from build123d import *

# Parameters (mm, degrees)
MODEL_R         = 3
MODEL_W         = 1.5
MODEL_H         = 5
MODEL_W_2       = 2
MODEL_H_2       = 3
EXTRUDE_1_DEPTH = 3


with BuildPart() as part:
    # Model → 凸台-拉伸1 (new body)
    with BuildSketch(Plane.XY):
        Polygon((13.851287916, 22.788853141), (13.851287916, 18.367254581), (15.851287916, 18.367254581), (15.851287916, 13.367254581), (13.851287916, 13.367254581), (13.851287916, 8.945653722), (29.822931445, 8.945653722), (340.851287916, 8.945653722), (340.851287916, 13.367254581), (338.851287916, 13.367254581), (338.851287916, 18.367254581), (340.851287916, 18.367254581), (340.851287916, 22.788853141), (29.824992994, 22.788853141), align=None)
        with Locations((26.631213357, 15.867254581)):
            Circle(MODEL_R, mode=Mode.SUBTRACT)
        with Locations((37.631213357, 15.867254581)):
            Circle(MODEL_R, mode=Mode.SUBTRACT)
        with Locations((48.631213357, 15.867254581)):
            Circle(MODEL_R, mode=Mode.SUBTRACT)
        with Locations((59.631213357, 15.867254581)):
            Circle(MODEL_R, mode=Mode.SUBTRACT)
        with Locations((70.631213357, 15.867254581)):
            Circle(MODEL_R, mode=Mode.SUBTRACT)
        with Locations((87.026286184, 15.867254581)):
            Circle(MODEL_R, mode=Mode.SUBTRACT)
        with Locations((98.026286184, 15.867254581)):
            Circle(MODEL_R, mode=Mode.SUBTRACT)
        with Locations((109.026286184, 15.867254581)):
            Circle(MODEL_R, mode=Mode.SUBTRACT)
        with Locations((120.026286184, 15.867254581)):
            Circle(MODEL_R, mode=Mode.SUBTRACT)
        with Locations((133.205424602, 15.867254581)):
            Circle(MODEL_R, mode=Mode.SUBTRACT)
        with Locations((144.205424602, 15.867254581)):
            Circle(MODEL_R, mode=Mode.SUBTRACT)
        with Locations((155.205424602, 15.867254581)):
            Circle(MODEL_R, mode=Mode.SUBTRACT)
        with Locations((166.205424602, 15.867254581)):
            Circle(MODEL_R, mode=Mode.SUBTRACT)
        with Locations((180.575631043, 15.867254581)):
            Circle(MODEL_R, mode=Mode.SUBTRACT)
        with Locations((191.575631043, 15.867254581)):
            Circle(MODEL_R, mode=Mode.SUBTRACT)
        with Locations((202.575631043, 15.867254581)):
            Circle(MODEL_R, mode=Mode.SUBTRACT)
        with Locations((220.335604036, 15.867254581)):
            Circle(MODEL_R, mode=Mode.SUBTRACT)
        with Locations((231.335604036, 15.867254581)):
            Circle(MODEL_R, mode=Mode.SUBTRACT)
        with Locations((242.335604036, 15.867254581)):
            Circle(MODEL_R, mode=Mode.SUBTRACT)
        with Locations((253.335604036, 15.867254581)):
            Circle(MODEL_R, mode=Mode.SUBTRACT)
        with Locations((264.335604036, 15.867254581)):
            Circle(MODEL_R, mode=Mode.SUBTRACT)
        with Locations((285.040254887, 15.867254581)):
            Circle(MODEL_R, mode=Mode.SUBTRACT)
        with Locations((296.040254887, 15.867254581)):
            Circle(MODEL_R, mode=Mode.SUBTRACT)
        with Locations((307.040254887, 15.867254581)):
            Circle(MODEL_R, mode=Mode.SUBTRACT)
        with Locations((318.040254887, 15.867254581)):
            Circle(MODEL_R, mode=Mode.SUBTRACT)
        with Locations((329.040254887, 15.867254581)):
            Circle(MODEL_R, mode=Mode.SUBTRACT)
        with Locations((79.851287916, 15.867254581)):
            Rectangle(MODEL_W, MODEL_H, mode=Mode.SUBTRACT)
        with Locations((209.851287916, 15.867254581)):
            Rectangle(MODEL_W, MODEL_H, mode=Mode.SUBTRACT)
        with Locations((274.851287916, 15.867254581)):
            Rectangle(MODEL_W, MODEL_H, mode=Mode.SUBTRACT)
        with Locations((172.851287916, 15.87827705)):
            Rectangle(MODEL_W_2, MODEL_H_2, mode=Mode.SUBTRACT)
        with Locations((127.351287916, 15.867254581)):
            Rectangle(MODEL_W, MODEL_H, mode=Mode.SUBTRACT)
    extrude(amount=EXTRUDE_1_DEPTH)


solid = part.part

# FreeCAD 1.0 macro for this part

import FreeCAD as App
import Part
import Sketcher

doc = App.newDocument("Part")
params = doc.addObject("Spreadsheet::Sheet", "Params")
for row, (alias, value) in enumerate([
    ("sketch1_diameter", "6 mm"),
    ("sketch1_width", "2 mm"),
    ("sketch1_width2", "327 mm"),
    ("sketch1_height", "5 mm"),
    ("sketch1_height2", "3 mm"),
    ("pad1_length", "3 mm"),
], start=1):
    params.set(f"A{row}", alias)
    params.set(f"B{row}", "=" + value)
    params.setAlias(f"B{row}", alias)

body = doc.addObject("PartDesign::Body", "Body")

sketch1 = body.newObject("Sketcher::SketchObject", "Sketch")
sketch1.AttachmentSupport = (doc.getObject("XY_Plane"), [""])
sketch1.MapMode = "FlatFace"
sketch1.addGeometry(Part.LineSegment(App.Vector(13.851288, 22.788853, 0), App.Vector(13.851288, 18.367255, 0)), False)
sketch1.addGeometry(Part.LineSegment(App.Vector(13.851288, 18.367255, 0), App.Vector(15.851288, 18.367255, 0)), False)
sketch1.addGeometry(Part.LineSegment(App.Vector(15.851288, 18.367255, 0), App.Vector(15.851288, 13.367255, 0)), False)
sketch1.addGeometry(Part.LineSegment(App.Vector(15.851288, 13.367255, 0), App.Vector(13.851288, 13.367255, 0)), False)
sketch1.addGeometry(Part.LineSegment(App.Vector(13.851288, 13.367255, 0), App.Vector(13.851288, 8.945654, 0)), False)
sketch1.addGeometry(Part.LineSegment(App.Vector(13.851288, 8.945654, 0), App.Vector(340.851288, 8.945654, 0)), False)
sketch1.addGeometry(Part.LineSegment(App.Vector(340.851288, 8.945654, 0), App.Vector(340.851288, 13.367255, 0)), False)
sketch1.addGeometry(Part.LineSegment(App.Vector(340.851288, 13.367255, 0), App.Vector(338.851288, 13.367255, 0)), False)
sketch1.addGeometry(Part.LineSegment(App.Vector(338.851288, 13.367255, 0), App.Vector(338.851288, 18.367255, 0)), False)
sketch1.addGeometry(Part.LineSegment(App.Vector(338.851288, 18.367255, 0), App.Vector(340.851288, 18.367255, 0)), False)
sketch1.addGeometry(Part.LineSegment(App.Vector(340.851288, 18.367255, 0), App.Vector(340.851288, 22.788853, 0)), False)
sketch1.addGeometry(Part.LineSegment(App.Vector(340.851288, 22.788853, 0), App.Vector(13.851288, 22.788853, 0)), False)
sketch1.addGeometry(Part.Circle(App.Vector(26.631213, 15.867255, 0), App.Vector(0, 0, 1), 3), False)
sketch1.addGeometry(Part.Circle(App.Vector(37.631213, 15.867255, 0), App.Vector(0, 0, 1), 3), False)
sketch1.addGeometry(Part.Circle(App.Vector(48.631213, 15.867255, 0), App.Vector(0, 0, 1), 3), False)
sketch1.addGeometry(Part.Circle(App.Vector(59.631213, 15.867255, 0), App.Vector(0, 0, 1), 3), False)
sketch1.addGeometry(Part.Circle(App.Vector(70.631213, 15.867255, 0), App.Vector(0, 0, 1), 3), False)
sketch1.addGeometry(Part.LineSegment(App.Vector(80.601288, 13.367255, 0), App.Vector(79.101288, 13.367255, 0)), False)
sketch1.addGeometry(Part.LineSegment(App.Vector(79.101288, 13.367255, 0), App.Vector(79.101288, 18.367255, 0)), False)
sketch1.addGeometry(Part.LineSegment(App.Vector(79.101288, 18.367255, 0), App.Vector(80.601288, 18.367255, 0)), False)
sketch1.addGeometry(Part.LineSegment(App.Vector(80.601288, 18.367255, 0), App.Vector(80.601288, 13.367255, 0)), False)
sketch1.addGeometry(Part.Circle(App.Vector(87.026286, 15.867255, 0), App.Vector(0, 0, 1), 3), False)
sketch1.addGeometry(Part.Circle(App.Vector(98.026286, 15.867255, 0), App.Vector(0, 0, 1), 3), False)
sketch1.addGeometry(Part.Circle(App.Vector(109.026286, 15.867255, 0), App.Vector(0, 0, 1), 3), False)
sketch1.addGeometry(Part.Circle(App.Vector(120.026286, 15.867255, 0), App.Vector(0, 0, 1), 3), False)
sketch1.addGeometry(Part.LineSegment(App.Vector(128.101288, 13.367255, 0), App.Vector(126.601288, 13.367255, 0)), False)
sketch1.addGeometry(Part.LineSegment(App.Vector(126.601288, 13.367255, 0), App.Vector(126.601288, 18.367255, 0)), False)
sketch1.addGeometry(Part.LineSegment(App.Vector(126.601288, 18.367255, 0), App.Vector(128.101288, 18.367255, 0)), False)
sketch1.addGeometry(Part.LineSegment(App.Vector(128.101288, 18.367255, 0), App.Vector(128.101288, 13.367255, 0)), False)
sketch1.addGeometry(Part.Circle(App.Vector(133.205425, 15.867255, 0), App.Vector(0, 0, 1), 3), False)
sketch1.addGeometry(Part.Circle(App.Vector(144.205425, 15.867255, 0), App.Vector(0, 0, 1), 3), False)
sketch1.addGeometry(Part.Circle(App.Vector(155.205425, 15.867255, 0), App.Vector(0, 0, 1), 3), False)
sketch1.addGeometry(Part.Circle(App.Vector(166.205425, 15.867255, 0), App.Vector(0, 0, 1), 3), False)
sketch1.addGeometry(Part.LineSegment(App.Vector(173.851288, 14.378277, 0), App.Vector(171.851288, 14.378277, 0)), False)
sketch1.addGeometry(Part.LineSegment(App.Vector(171.851288, 14.378277, 0), App.Vector(171.851288, 17.378277, 0)), False)
sketch1.addGeometry(Part.LineSegment(App.Vector(171.851288, 17.378277, 0), App.Vector(173.851288, 17.378277, 0)), False)
sketch1.addGeometry(Part.LineSegment(App.Vector(173.851288, 17.378277, 0), App.Vector(173.851288, 14.378277, 0)), False)
sketch1.addGeometry(Part.Circle(App.Vector(180.575631, 15.867255, 0), App.Vector(0, 0, 1), 3), False)
sketch1.addGeometry(Part.Circle(App.Vector(191.575631, 15.867255, 0), App.Vector(0, 0, 1), 3), False)
sketch1.addGeometry(Part.Circle(App.Vector(202.575631, 15.867255, 0), App.Vector(0, 0, 1), 3), False)
sketch1.addGeometry(Part.LineSegment(App.Vector(210.601288, 13.367255, 0), App.Vector(209.101288, 13.367255, 0)), False)
sketch1.addGeometry(Part.LineSegment(App.Vector(209.101288, 13.367255, 0), App.Vector(209.101288, 18.367255, 0)), False)
sketch1.addGeometry(Part.LineSegment(App.Vector(209.101288, 18.367255, 0), App.Vector(210.601288, 18.367255, 0)), False)
sketch1.addGeometry(Part.LineSegment(App.Vector(210.601288, 18.367255, 0), App.Vector(210.601288, 13.367255, 0)), False)
sketch1.addGeometry(Part.Circle(App.Vector(220.335604, 15.867255, 0), App.Vector(0, 0, 1), 3), False)
sketch1.addGeometry(Part.Circle(App.Vector(231.335604, 15.867255, 0), App.Vector(0, 0, 1), 3), False)
sketch1.addGeometry(Part.Circle(App.Vector(242.335604, 15.867255, 0), App.Vector(0, 0, 1), 3), False)
sketch1.addGeometry(Part.Circle(App.Vector(253.335604, 15.867255, 0), App.Vector(0, 0, 1), 3), False)
sketch1.addGeometry(Part.Circle(App.Vector(264.335604, 15.867255, 0), App.Vector(0, 0, 1), 3), False)
sketch1.addGeometry(Part.LineSegment(App.Vector(275.601288, 13.367255, 0), App.Vector(274.101288, 13.367255, 0)), False)
sketch1.addGeometry(Part.LineSegment(App.Vector(274.101288, 13.367255, 0), App.Vector(274.101288, 18.367255, 0)), False)
sketch1.addGeometry(Part.LineSegment(App.Vector(274.101288, 18.367255, 0), App.Vector(275.601288, 18.367255, 0)), False)
sketch1.addGeometry(Part.LineSegment(App.Vector(275.601288, 18.367255, 0), App.Vector(275.601288, 13.367255, 0)), False)
sketch1.addGeometry(Part.Circle(App.Vector(285.040255, 15.867255, 0), App.Vector(0, 0, 1), 3), False)
sketch1.addGeometry(Part.Circle(App.Vector(296.040255, 15.867255, 0), App.Vector(0, 0, 1), 3), False)
sketch1.addGeometry(Part.Circle(App.Vector(307.040255, 15.867255, 0), App.Vector(0, 0, 1), 3), False)
sketch1.addGeometry(Part.Circle(App.Vector(318.040255, 15.867255, 0), App.Vector(0, 0, 1), 3), False)
sketch1.addGeometry(Part.Circle(App.Vector(329.040255, 15.867255, 0), App.Vector(0, 0, 1), 3), False)
sketch1.addConstraint(Sketcher.Constraint("Coincident", 0, 2, 1, 1))
sketch1.addConstraint(Sketcher.Constraint("Coincident", 1, 2, 2, 1))
sketch1.addConstraint(Sketcher.Constraint("Coincident", 2, 2, 3, 1))
sketch1.addConstraint(Sketcher.Constraint("Coincident", 3, 2, 4, 1))
sketch1.addConstraint(Sketcher.Constraint("Coincident", 4, 2, 5, 1))
sketch1.addConstraint(Sketcher.Constraint("Coincident", 5, 2, 6, 1))
sketch1.addConstraint(Sketcher.Constraint("Coincident", 6, 2, 7, 1))
sketch1.addConstraint(Sketcher.Constraint("Coincident", 7, 2, 8, 1))
sketch1.addConstraint(Sketcher.Constraint("Coincident", 8, 2, 9, 1))
sketch1.addConstraint(Sketcher.Constraint("Coincident", 9, 2, 10, 1))
sketch1.addConstraint(Sketcher.Constraint("Coincident", 10, 2, 11, 1))
sketch1.addConstraint(Sketcher.Constraint("Coincident", 11, 2, 0, 1))
sketch1.addConstraint(Sketcher.Constraint("Coincident", 17, 2, 18, 1))
sketch1.addConstraint(Sketcher.Constraint("Coincident", 18, 2, 19, 1))
sketch1.addConstraint(Sketcher.Constraint("Coincident", 19, 2, 20, 1))
sketch1.addConstraint(Sketcher.Constraint("Coincident", 20, 2, 17, 1))
sketch1.addConstraint(Sketcher.Constraint("Coincident", 25, 2, 26, 1))
sketch1.addConstraint(Sketcher.Constraint("Coincident", 26, 2, 27, 1))
sketch1.addConstraint(Sketcher.Constraint("Coincident", 27, 2, 28, 1))
sketch1.addConstraint(Sketcher.Constraint("Coincident", 28, 2, 25, 1))
sketch1.addConstraint(Sketcher.Constraint("Coincident", 33, 2, 34, 1))
sketch1.addConstraint(Sketcher.Constraint("Coincident", 34, 2, 35, 1))
sketch1.addConstraint(Sketcher.Constraint("Coincident", 35, 2, 36, 1))
sketch1.addConstraint(Sketcher.Constraint("Coincident", 36, 2, 33, 1))
sketch1.addConstraint(Sketcher.Constraint("Coincident", 40, 2, 41, 1))
sketch1.addConstraint(Sketcher.Constraint("Coincident", 41, 2, 42, 1))
sketch1.addConstraint(Sketcher.Constraint("Coincident", 42, 2, 43, 1))
sketch1.addConstraint(Sketcher.Constraint("Coincident", 43, 2, 40, 1))
sketch1.addConstraint(Sketcher.Constraint("Coincident", 49, 2, 50, 1))
sketch1.addConstraint(Sketcher.Constraint("Coincident", 50, 2, 51, 1))
sketch1.addConstraint(Sketcher.Constraint("Coincident", 51, 2, 52, 1))
sketch1.addConstraint(Sketcher.Constraint("Coincident", 52, 2, 49, 1))
sketch1.addConstraint(Sketcher.Constraint("Vertical", 0))
sketch1.addConstraint(Sketcher.Constraint("Horizontal", 1))
sketch1.addConstraint(Sketcher.Constraint("Vertical", 2))
sketch1.addConstraint(Sketcher.Constraint("Horizontal", 3))
sketch1.addConstraint(Sketcher.Constraint("Vertical", 4))
sketch1.addConstraint(Sketcher.Constraint("Horizontal", 5))
sketch1.addConstraint(Sketcher.Constraint("Vertical", 6))
sketch1.addConstraint(Sketcher.Constraint("Horizontal", 7))
sketch1.addConstraint(Sketcher.Constraint("Vertical", 8))
sketch1.addConstraint(Sketcher.Constraint("Horizontal", 9))
sketch1.addConstraint(Sketcher.Constraint("Vertical", 10))
sketch1.addConstraint(Sketcher.Constraint("Horizontal", 11))
sketch1.addConstraint(Sketcher.Constraint("Horizontal", 17))
sketch1.addConstraint(Sketcher.Constraint("Vertical", 18))
sketch1.addConstraint(Sketcher.Constraint("Horizontal", 19))
sketch1.addConstraint(Sketcher.Constraint("Vertical", 20))
sketch1.addConstraint(Sketcher.Constraint("Horizontal", 25))
sketch1.addConstraint(Sketcher.Constraint("Vertical", 26))
sketch1.addConstraint(Sketcher.Constraint("Horizontal", 27))
sketch1.addConstraint(Sketcher.Constraint("Vertical", 28))
sketch1.addConstraint(Sketcher.Constraint("Horizontal", 33))
sketch1.addConstraint(Sketcher.Constraint("Vertical", 34))
sketch1.addConstraint(Sketcher.Constraint("Horizontal", 35))
sketch1.addConstraint(Sketcher.Constraint("Vertical", 36))
sketch1.addConstraint(Sketcher.Constraint("Horizontal", 40))
sketch1.addConstraint(Sketcher.Constraint("Vertical", 41))
sketch1.addConstraint(Sketcher.Constraint("Horizontal", 42))
sketch1.addConstraint(Sketcher.Constraint("Vertical", 43))
sketch1.addConstraint(Sketcher.Constraint("Horizontal", 49))
sketch1.addConstraint(Sketcher.Constraint("Vertical", 50))
sketch1.addConstraint(Sketcher.Constraint("Horizontal", 51))
sketch1.addConstraint(Sketcher.Constraint("Vertical", 52))
sketch1.addConstraint(Sketcher.Constraint("Equal", 12, 13))
sketch1.addConstraint(Sketcher.Constraint("Equal", 13, 14))
sketch1.addConstraint(Sketcher.Constraint("Equal", 14, 15))
sketch1.addConstraint(Sketcher.Constraint("Equal", 15, 16))
sketch1.addConstraint(Sketcher.Constraint("Equal", 16, 21))
sketch1.addConstraint(Sketcher.Constraint("Equal", 21, 22))
sketch1.addConstraint(Sketcher.Constraint("Equal", 22, 23))
sketch1.addConstraint(Sketcher.Constraint("Equal", 23, 24))
sketch1.addConstraint(Sketcher.Constraint("Equal", 24, 29))
sketch1.addConstraint(Sketcher.Constraint("Equal", 29, 30))
sketch1.addConstraint(Sketcher.Constraint("Equal", 30, 31))
sketch1.addConstraint(Sketcher.Constraint("Equal", 31, 32))
sketch1.addConstraint(Sketcher.Constraint("Equal", 32, 37))
sketch1.addConstraint(Sketcher.Constraint("Equal", 37, 38))
sketch1.addConstraint(Sketcher.Constraint("Equal", 38, 39))
sketch1.addConstraint(Sketcher.Constraint("Equal", 39, 44))
sketch1.addConstraint(Sketcher.Constraint("Equal", 44, 45))
sketch1.addConstraint(Sketcher.Constraint("Equal", 45, 46))
sketch1.addConstraint(Sketcher.Constraint("Equal", 46, 47))
sketch1.addConstraint(Sketcher.Constraint("Equal", 47, 48))
sketch1.addConstraint(Sketcher.Constraint("Equal", 48, 53))
sketch1.addConstraint(Sketcher.Constraint("Equal", 53, 54))
sketch1.addConstraint(Sketcher.Constraint("Equal", 54, 55))
sketch1.addConstraint(Sketcher.Constraint("Equal", 55, 56))
sketch1.addConstraint(Sketcher.Constraint("Equal", 56, 57))
sketch1.addConstraint(Sketcher.Constraint("Horizontal", 12, 3, 13, 3))
sketch1.addConstraint(Sketcher.Constraint("Horizontal", 13, 3, 14, 3))
sketch1.addConstraint(Sketcher.Constraint("Horizontal", 14, 3, 15, 3))
sketch1.addConstraint(Sketcher.Constraint("Horizontal", 15, 3, 16, 3))
sketch1.addConstraint(Sketcher.Constraint("Horizontal", 16, 3, 21, 3))
sketch1.addConstraint(Sketcher.Constraint("Horizontal", 21, 3, 22, 3))
sketch1.addConstraint(Sketcher.Constraint("Horizontal", 22, 3, 23, 3))
sketch1.addConstraint(Sketcher.Constraint("Horizontal", 23, 3, 24, 3))
sketch1.addConstraint(Sketcher.Constraint("Horizontal", 24, 3, 29, 3))
sketch1.addConstraint(Sketcher.Constraint("Horizontal", 29, 3, 30, 3))
sketch1.addConstraint(Sketcher.Constraint("Horizontal", 30, 3, 31, 3))
sketch1.addConstraint(Sketcher.Constraint("Horizontal", 31, 3, 32, 3))
sketch1.addConstraint(Sketcher.Constraint("Horizontal", 32, 3, 37, 3))
sketch1.addConstraint(Sketcher.Constraint("Horizontal", 37, 3, 38, 3))
sketch1.addConstraint(Sketcher.Constraint("Horizontal", 38, 3, 39, 3))
sketch1.addConstraint(Sketcher.Constraint("Horizontal", 39, 3, 44, 3))
sketch1.addConstraint(Sketcher.Constraint("Horizontal", 44, 3, 45, 3))
sketch1.addConstraint(Sketcher.Constraint("Horizontal", 45, 3, 46, 3))
sketch1.addConstraint(Sketcher.Constraint("Horizontal", 46, 3, 47, 3))
sketch1.addConstraint(Sketcher.Constraint("Horizontal", 47, 3, 48, 3))
sketch1.addConstraint(Sketcher.Constraint("Horizontal", 48, 3, 53, 3))
sketch1.addConstraint(Sketcher.Constraint("Horizontal", 53, 3, 54, 3))
sketch1.addConstraint(Sketcher.Constraint("Horizontal", 54, 3, 55, 3))
sketch1.addConstraint(Sketcher.Constraint("Horizontal", 55, 3, 56, 3))
sketch1.addConstraint(Sketcher.Constraint("Horizontal", 56, 3, 57, 3))
sketch1.addConstraint(Sketcher.Constraint("Horizontal", 3, 2, 6, 2))
sketch1.addConstraint(Sketcher.Constraint("Horizontal", 1, 2, 8, 2))
sketch1.addConstraint(Sketcher.Constraint("Horizontal", 7, 2, 17, 2))
sketch1.addConstraint(Sketcher.Constraint("Horizontal", 9, 2, 18, 2))
sketch1.addConstraint(Sketcher.Constraint("Horizontal", 20, 2, 25, 2))
sketch1.addConstraint(Sketcher.Constraint("Horizontal", 19, 2, 26, 2))
sketch1.addConstraint(Sketcher.Constraint("Horizontal", 28, 2, 40, 2))
sketch1.addConstraint(Sketcher.Constraint("Horizontal", 27, 2, 41, 2))
sketch1.addConstraint(Sketcher.Constraint("Horizontal", 43, 2, 49, 2))
sketch1.addConstraint(Sketcher.Constraint("Horizontal", 42, 2, 50, 2))
sketch1.addConstraint(Sketcher.Constraint("Vertical", 0, 2, 3, 2))
sketch1.addConstraint(Sketcher.Constraint("Vertical", 6, 2, 9, 2))
sketch1.addConstraint(Sketcher.Constraint("Equal", 3, 7))
sketch1.addConstraint(Sketcher.Constraint("Equal", 19, 25))
sketch1.addConstraint(Sketcher.Constraint("Equal", 9, 33))
sketch1.addConstraint(Sketcher.Constraint("Equal", 27, 40))
sketch1.addConstraint(Sketcher.Constraint("Equal", 42, 49))
sketch1.addConstraint(Sketcher.Constraint("Diameter", 12, 6.0))
sketch1.addConstraint(Sketcher.Constraint("DistanceX", 1, 1, 1, 2, 2.0))
sketch1.addConstraint(Sketcher.Constraint("DistanceX", 5, 1, 5, 2, 327.0))
sketch1.addConstraint(Sketcher.Constraint("DistanceY", 2, 2, 2, 1, 5.0))
sketch1.addConstraint(Sketcher.Constraint("DistanceY", 34, 1, 34, 2, 3.0))
sketch1.addConstraint(Sketcher.Constraint("DistanceX", 17, 2, 17, 1, 1.5))
sketch1.addConstraint(Sketcher.Constraint("DistanceX", 12, 3, 13, 3, 11.0))
sketch1.addConstraint(Sketcher.Constraint("DistanceX", 13, 3, 14, 3, 11.0))
sketch1.addConstraint(Sketcher.Constraint("DistanceX", 14, 3, 15, 3, 11.0))
sketch1.addConstraint(Sketcher.Constraint("DistanceX", 15, 3, 16, 3, 11.0))
sketch1.addConstraint(Sketcher.Constraint("DistanceX", 21, 3, 22, 3, 11.0))
sketch1.addConstraint(Sketcher.Constraint("DistanceX", 22, 3, 23, 3, 11.0))
sketch1.addConstraint(Sketcher.Constraint("DistanceX", 23, 3, 24, 3, 11.0))
sketch1.addConstraint(Sketcher.Constraint("DistanceX", 29, 3, 30, 3, 11.0))
sketch1.addConstraint(Sketcher.Constraint("DistanceX", 30, 3, 31, 3, 11.0))
sketch1.addConstraint(Sketcher.Constraint("DistanceX", 31, 3, 32, 3, 11.0))
sketch1.addConstraint(Sketcher.Constraint("DistanceX", 37, 3, 38, 3, 11.0))
sketch1.addConstraint(Sketcher.Constraint("DistanceX", 38, 3, 39, 3, 11.0))
sketch1.addConstraint(Sketcher.Constraint("DistanceX", 44, 3, 45, 3, 11.0))
sketch1.addConstraint(Sketcher.Constraint("DistanceX", 45, 3, 46, 3, 11.0))
sketch1.addConstraint(Sketcher.Constraint("DistanceX", 46, 3, 47, 3, 11.0))
sketch1.addConstraint(Sketcher.Constraint("DistanceX", 47, 3, 48, 3, 11.0))
sketch1.addConstraint(Sketcher.Constraint("DistanceX", 53, 3, 54, 3, 11.0))
sketch1.addConstraint(Sketcher.Constraint("DistanceX", 54, 3, 55, 3, 11.0))
sketch1.addConstraint(Sketcher.Constraint("DistanceX", 55, 3, 56, 3, 11.0))
sketch1.addConstraint(Sketcher.Constraint("DistanceX", 56, 3, 57, 3, 11.0))
sketch1.addConstraint(Sketcher.Constraint("DistanceY", 12, 3, 0, 2, 2.5))
sketch1.addConstraint(Sketcher.Constraint("DistanceY", 0, 2, 0, 1, 4.421599))
sketch1.addConstraint(Sketcher.Constraint("DistanceY", 4, 2, 4, 1, 4.421601))
sketch1.addConstraint(Sketcher.Constraint("DistanceX", 17, 2, 21, 3, 7.924998))
sketch1.addConstraint(Sketcher.Constraint("DistanceX", 24, 3, 25, 2, 6.575002))
sketch1.addConstraint(Sketcher.Constraint("DistanceX", -1, 1, 37, 3, 180.575631))
sketch1.addConstraint(Sketcher.Constraint("DistanceX", 24, 3, 29, 3, 13.179138))
sketch1.addConstraint(Sketcher.Constraint("DistanceX", 16, 3, 29, 3, 62.574211))
sketch1.addConstraint(Sketcher.Constraint("DistanceX", 32, 3, 44, 3, 54.130179))
sketch1.addConstraint(Sketcher.Constraint("DistanceX", 48, 3, 53, 3, 20.704651))
sketch1.addConstraint(Sketcher.Constraint("DistanceX", -1, 1, 12, 3, 26.631213))
sketch1.addConstraint(Sketcher.Constraint("DistanceY", -1, 1, 12, 3, 15.867255))
sketch1.addConstraint(Sketcher.Constraint("DistanceX", -1, 1, 0, 2, 13.851288))
sketch1.addConstraint(Sketcher.Constraint("DistanceX", -1, 1, 33, 2, 171.851288))
sketch1.addConstraint(Sketcher.Constraint("DistanceY", -1, 1, 33, 2, 14.378277))
sketch1.addConstraint(Sketcher.Constraint("DistanceX", -1, 1, 40, 2, 209.101288))
sketch1.addConstraint(Sketcher.Constraint("DistanceX", -1, 1, 49, 2, 274.101288))
sketch1.setExpression("Constraints[131]", "Params.sketch1_diameter")
sketch1.setExpression("Constraints[132]", "Params.sketch1_width")
sketch1.setExpression("Constraints[133]", "Params.sketch1_width2")
sketch1.setExpression("Constraints[134]", "Params.sketch1_height")
sketch1.setExpression("Constraints[135]", "Params.sketch1_height2")
pad1 = body.newObject("PartDesign::Pad", "Pad")
pad1.Profile = sketch1
pad1.setExpression("Length", "Params.pad1_length")

doc.recompute()
